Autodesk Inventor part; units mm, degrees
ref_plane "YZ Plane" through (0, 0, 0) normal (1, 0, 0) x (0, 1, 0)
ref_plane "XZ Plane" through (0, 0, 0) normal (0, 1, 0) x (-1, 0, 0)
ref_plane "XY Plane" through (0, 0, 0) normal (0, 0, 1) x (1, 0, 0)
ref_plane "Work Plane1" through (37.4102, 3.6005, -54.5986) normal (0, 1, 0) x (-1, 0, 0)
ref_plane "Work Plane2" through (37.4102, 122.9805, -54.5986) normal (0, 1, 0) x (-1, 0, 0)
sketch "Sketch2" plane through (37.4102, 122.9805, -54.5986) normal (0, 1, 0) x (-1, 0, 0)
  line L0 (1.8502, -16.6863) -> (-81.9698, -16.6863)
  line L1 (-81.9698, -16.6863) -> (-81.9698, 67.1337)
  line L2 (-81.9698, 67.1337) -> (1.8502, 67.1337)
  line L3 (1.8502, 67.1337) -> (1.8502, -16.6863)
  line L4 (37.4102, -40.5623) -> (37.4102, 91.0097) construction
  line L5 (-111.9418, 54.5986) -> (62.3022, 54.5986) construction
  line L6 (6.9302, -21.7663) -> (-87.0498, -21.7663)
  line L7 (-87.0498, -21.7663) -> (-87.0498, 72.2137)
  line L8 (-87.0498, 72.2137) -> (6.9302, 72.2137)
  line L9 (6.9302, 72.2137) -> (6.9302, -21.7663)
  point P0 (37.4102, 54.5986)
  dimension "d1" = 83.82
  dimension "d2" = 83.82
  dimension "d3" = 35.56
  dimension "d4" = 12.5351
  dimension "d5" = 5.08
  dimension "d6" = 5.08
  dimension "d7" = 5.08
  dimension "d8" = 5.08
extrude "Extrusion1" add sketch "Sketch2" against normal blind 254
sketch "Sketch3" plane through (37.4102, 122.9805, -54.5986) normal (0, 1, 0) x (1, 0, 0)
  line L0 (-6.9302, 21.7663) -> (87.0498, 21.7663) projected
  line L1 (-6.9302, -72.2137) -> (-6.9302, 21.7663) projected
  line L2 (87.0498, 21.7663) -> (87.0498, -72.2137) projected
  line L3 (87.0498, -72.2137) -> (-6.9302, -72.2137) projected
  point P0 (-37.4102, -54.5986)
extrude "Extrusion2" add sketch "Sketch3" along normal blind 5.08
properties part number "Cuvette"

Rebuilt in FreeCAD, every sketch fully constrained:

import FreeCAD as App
import Part
import Sketcher
from FreeCAD import Vector
Q = App.Units.Quantity


def add_polygon(sketch, points):
    """Adds a closed chain of lines whose ends are joined by coincident constraints."""
    first, n = sketch.GeometryCount, len(points)
    for a, b in zip(points, points[1:] + points[:1]):
        sketch.addGeometry(Part.LineSegment(App.Vector(*a, 0), App.Vector(*b, 0)), False)
    for i in range(n):
        sketch.addConstraint(Sketcher.Constraint("Coincident", first + i, 2, first + (i + 1) % n, 1))

doc = App.newDocument("Part")
body = doc.addObject("PartDesign::Body", "Body")

sketch1 = body.newObject("Sketcher::SketchObject", "Sketch")
sketch1.AttachmentSupport = (doc.getObject("XZ_Plane"), [""])
sketch1.MapMode = "FlatFace"
sketch1.AttachmentOffset = App.Placement(Vector(0, 0, -122.9805), App.Rotation())
add_polygon(sketch1, [(124, -76), (30, -76), (30, 18), (124, 18)])
add_polygon(sketch1, [(36, 13), (36, -71), (119, -71), (119, 13)])
sketch1.addConstraint([
    Sketcher.Constraint("Horizontal", 0),
    Sketcher.Constraint("Vertical", 1),
    Sketcher.Constraint("Horizontal", 2),
    Sketcher.Constraint("Vertical", 3),
    Sketcher.Constraint("Vertical", 4),
    Sketcher.Constraint("Horizontal", 5),
    Sketcher.Constraint("Vertical", 6),
    Sketcher.Constraint("Horizontal", 7),
    Sketcher.Constraint("Equal", 2, 1),
    Sketcher.Constraint("Equal", 7, 4),
    Sketcher.Constraint("DistanceX", 5, 1, 5, 2, Q("3.3 in")),
    Sketcher.Constraint("DistanceX", -1, 1, 4, 2, Q("1.4 in")),
    Sketcher.Constraint("DistanceX", 0, 2, 4, 2, Q("0.2 in")),
    Sketcher.Constraint("DistanceY", 0, 2, 4, 2, Q("0.2 in")),
    Sketcher.Constraint("DistanceX", 5, 2, 3, 2, Q("0.2 in")),
    Sketcher.Constraint("DistanceY", -1, 1, 6, 2, Q("0.4935 in")),
])
pad1 = body.newObject("PartDesign::Pad", "Pad")
pad1.Profile = sketch1
pad1.Length = Q("10 in")

sketch2 = body.newObject("Sketcher::SketchObject", "Sketch001")
sketch2.AttachmentSupport = (doc.getObject("XZ_Plane"), [""])
sketch2.MapMode = "FlatFace"
sketch2.AttachmentOffset = App.Placement(Vector(0, 0, -122.9805), App.Rotation())
add_polygon(sketch2, [(124, -76), (30, -76), (30, 18), (124, 18)])
sketch2.addConstraint([
    Sketcher.Constraint("Horizontal", 0),
    Sketcher.Constraint("Vertical", 1),
    Sketcher.Constraint("Horizontal", 2),
    Sketcher.Constraint("Vertical", 3),
    Sketcher.Constraint("Equal", 2, 1),
    Sketcher.Constraint("DistanceX", 0, 2, 0, 1, Q("3.7 in")),
    Sketcher.Constraint("DistanceX", -1, 1, 0, 2, Q("1.2 in")),
    Sketcher.Constraint("DistanceY", 0, 2, -1, 1, Q("3.0065 in")),
])
pad2 = body.newObject("PartDesign::Pad", "Pad001")
pad2.Profile = sketch2
pad2.Length = Q("0.2 in")
pad2.Reversed = True

doc.recompute()
